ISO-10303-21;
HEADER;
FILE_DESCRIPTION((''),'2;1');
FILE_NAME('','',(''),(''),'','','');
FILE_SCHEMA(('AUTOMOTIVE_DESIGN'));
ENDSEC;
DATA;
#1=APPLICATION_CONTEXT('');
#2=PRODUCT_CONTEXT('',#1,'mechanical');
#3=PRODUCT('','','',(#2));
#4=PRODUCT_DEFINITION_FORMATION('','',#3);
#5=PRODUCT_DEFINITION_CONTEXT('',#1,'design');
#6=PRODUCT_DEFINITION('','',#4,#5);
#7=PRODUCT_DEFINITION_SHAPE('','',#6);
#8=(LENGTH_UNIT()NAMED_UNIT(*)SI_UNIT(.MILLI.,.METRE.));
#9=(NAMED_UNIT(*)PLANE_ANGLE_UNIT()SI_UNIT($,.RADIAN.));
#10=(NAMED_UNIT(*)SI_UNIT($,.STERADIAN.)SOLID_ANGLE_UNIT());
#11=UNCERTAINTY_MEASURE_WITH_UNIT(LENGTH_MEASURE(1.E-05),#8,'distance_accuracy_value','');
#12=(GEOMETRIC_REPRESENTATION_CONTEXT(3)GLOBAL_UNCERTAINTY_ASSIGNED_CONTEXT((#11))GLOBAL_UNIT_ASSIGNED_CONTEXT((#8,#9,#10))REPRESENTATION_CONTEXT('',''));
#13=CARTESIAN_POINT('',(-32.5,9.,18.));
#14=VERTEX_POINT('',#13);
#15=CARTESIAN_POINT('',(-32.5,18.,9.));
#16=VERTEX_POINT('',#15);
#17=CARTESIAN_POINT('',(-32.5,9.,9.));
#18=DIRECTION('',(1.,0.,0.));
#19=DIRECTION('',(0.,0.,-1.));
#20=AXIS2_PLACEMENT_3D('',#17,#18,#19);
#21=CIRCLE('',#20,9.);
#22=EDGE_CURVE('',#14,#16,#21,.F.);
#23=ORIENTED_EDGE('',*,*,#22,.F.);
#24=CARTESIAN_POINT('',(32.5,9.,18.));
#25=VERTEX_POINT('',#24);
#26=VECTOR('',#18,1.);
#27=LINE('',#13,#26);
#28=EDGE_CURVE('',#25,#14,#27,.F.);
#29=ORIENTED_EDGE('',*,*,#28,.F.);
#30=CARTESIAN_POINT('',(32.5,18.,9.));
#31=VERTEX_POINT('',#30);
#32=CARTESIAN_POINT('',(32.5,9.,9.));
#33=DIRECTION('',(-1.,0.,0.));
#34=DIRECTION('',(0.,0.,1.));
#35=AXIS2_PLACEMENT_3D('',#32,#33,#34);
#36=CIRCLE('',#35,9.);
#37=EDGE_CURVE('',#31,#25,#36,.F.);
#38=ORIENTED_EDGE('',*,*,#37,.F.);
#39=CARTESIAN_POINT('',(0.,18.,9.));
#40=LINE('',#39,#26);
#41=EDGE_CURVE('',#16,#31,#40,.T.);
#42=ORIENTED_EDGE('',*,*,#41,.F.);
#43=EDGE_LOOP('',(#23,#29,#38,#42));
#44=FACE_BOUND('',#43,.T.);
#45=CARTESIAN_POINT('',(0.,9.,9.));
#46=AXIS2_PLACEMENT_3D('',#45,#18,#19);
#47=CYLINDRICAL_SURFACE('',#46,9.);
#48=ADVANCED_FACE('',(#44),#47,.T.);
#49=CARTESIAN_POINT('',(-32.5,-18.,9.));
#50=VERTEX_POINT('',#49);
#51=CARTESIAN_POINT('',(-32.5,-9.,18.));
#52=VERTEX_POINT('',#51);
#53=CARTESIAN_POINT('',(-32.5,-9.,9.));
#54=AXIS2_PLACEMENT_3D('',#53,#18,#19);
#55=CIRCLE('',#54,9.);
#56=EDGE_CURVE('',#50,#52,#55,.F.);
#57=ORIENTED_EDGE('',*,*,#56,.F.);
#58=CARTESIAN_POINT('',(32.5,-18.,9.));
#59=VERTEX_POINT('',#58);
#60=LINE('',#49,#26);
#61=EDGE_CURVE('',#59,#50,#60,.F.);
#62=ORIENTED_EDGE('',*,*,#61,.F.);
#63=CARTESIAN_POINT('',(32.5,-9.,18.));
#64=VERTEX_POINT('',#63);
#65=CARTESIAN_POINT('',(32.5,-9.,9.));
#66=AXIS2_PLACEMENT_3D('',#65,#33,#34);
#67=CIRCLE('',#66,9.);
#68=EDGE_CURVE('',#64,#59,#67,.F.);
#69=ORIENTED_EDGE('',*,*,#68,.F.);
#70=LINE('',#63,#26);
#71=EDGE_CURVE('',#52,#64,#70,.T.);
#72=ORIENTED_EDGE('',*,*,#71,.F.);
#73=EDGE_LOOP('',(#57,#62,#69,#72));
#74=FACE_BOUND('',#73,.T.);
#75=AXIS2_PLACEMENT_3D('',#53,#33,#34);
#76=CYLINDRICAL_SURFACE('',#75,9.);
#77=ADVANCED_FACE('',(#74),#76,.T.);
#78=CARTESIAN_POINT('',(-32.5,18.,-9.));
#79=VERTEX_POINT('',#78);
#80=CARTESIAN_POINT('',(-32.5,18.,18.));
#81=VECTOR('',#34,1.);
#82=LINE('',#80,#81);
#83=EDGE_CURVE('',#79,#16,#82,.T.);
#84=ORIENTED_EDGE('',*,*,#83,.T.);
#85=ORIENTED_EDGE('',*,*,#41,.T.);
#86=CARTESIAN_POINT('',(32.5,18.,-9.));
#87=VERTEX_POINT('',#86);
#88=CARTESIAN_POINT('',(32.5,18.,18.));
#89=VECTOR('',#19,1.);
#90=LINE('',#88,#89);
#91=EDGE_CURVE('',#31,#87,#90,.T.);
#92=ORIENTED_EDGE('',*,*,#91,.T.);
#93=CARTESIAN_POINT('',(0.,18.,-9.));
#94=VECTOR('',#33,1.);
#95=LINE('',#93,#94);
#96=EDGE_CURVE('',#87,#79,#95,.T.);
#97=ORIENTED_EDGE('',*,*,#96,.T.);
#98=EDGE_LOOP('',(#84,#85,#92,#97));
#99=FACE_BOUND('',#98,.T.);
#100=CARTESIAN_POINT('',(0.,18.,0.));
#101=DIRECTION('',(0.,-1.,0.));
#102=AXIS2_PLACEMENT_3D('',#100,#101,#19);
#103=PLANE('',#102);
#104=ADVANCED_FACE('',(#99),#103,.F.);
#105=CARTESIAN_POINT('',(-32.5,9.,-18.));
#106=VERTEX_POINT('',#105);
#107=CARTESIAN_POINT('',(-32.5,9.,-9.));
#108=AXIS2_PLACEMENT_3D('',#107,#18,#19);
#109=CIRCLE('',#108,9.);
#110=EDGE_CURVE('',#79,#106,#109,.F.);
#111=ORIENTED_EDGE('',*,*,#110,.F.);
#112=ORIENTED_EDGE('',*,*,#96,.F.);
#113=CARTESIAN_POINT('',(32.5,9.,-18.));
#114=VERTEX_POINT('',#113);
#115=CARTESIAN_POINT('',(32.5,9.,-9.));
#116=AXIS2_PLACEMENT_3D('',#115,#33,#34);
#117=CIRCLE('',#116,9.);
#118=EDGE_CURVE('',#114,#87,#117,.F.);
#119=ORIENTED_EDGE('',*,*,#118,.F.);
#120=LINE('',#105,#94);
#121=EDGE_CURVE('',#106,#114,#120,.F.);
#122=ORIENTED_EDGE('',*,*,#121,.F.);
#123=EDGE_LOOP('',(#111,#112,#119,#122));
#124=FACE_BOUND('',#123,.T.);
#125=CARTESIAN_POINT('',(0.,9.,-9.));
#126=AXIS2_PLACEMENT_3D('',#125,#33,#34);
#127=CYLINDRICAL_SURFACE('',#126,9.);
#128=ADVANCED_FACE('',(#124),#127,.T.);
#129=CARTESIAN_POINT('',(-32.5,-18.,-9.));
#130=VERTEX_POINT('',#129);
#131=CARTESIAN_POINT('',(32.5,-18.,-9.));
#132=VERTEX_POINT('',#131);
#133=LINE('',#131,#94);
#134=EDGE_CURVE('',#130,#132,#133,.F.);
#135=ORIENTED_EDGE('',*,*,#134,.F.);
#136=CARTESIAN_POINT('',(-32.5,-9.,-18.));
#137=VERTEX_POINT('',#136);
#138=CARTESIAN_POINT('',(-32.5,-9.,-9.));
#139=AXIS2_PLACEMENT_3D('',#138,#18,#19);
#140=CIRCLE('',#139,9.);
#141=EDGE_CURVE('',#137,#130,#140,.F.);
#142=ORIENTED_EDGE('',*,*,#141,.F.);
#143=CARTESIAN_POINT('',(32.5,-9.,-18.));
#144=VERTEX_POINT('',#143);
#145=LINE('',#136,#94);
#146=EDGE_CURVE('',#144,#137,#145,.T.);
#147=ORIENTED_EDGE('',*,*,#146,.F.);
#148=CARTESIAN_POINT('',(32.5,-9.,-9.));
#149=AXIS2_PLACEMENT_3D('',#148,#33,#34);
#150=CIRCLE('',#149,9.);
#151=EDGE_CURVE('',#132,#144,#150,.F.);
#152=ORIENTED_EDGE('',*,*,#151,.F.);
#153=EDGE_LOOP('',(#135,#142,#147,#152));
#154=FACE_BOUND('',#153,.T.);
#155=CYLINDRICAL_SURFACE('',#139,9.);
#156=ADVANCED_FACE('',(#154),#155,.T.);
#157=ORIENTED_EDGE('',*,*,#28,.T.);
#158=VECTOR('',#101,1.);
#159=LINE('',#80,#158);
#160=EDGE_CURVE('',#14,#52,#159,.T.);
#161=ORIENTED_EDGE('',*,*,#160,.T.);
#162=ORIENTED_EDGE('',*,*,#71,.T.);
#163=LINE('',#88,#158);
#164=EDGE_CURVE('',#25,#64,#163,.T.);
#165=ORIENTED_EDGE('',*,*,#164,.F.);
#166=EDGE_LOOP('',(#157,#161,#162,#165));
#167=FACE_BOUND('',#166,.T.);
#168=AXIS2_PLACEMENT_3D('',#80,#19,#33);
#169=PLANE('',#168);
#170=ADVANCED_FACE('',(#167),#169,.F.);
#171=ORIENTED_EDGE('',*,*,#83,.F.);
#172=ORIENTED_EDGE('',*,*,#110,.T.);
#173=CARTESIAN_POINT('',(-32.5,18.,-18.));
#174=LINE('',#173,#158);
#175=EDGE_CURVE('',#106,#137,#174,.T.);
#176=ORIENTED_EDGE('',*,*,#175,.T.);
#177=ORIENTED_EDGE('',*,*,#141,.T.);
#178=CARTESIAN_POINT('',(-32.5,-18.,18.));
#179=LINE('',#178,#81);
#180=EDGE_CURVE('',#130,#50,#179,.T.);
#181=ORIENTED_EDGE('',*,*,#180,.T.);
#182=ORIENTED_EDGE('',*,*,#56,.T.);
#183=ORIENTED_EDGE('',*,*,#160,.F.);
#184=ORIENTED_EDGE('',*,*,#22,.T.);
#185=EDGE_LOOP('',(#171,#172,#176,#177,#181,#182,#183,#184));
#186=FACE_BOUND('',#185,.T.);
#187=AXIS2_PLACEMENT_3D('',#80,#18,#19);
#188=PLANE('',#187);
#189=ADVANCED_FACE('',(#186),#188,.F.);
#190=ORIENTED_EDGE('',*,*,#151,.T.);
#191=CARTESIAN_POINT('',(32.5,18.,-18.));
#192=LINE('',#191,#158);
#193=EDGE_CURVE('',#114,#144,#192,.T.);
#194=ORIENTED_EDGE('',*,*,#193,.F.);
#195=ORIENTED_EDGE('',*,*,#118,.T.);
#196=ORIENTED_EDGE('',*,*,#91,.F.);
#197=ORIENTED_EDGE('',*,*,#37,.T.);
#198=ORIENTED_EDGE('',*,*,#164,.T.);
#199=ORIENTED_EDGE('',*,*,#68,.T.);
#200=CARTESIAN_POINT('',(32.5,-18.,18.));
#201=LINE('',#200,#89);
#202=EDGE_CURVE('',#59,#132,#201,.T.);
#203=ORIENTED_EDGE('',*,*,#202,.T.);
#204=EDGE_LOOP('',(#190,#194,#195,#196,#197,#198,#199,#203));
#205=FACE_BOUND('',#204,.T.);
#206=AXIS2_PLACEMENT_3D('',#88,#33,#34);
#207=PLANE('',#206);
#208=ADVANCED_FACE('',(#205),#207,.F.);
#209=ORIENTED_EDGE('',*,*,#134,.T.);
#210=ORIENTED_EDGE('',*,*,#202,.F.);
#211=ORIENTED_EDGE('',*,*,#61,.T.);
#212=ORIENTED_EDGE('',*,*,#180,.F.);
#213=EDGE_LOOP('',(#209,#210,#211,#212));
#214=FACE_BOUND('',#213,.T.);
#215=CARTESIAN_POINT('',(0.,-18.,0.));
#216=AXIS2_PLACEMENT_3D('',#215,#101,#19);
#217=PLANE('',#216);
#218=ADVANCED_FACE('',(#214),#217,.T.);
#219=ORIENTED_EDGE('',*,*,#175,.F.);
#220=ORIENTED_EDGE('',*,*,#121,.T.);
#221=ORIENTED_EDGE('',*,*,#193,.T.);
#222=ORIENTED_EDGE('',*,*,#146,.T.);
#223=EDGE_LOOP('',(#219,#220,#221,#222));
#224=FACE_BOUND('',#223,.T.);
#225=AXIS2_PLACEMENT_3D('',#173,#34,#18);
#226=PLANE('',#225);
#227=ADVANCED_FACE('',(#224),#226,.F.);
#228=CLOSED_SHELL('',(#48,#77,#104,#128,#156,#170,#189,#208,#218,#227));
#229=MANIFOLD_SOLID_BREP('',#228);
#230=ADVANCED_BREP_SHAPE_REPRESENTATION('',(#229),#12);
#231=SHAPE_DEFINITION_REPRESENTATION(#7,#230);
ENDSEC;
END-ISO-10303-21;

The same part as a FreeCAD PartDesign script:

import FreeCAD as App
import Part
import Sketcher

V = App.Vector
Q = App.Units.Quantity


def edges_at(feature, points):
    """Names of the edges that pass closest to the given points."""
    edges = feature.Shape.Edges
    near = lambda p: min(range(len(edges)), key=lambda i: edges[i].distToShape(Part.Vertex(*p))[0])
    return sorted({f"Edge{near(p) + 1}" for p in points})

doc = App.newDocument("Part")
params = doc.addObject("Spreadsheet::Sheet", "Params")
for row, (alias, value) in enumerate([
    ("sketch1_width", "65 mm"),
    ("sketch1_height", "36 mm"),
    ("pad1_length", "36 mm"),
    ("fillet_radius", "9 mm"),
], start=1):
    params.set(f"A{row}", alias)
    params.set(f"B{row}", "=" + value)
    params.setAlias(f"B{row}", alias)

body = doc.addObject("PartDesign::Body", "Body")

# Sketch on XZ plane
sketch1 = body.newObject("Sketcher::SketchObject", "Sketch")
sketch1.AttachmentSupport = (doc.getObject("XZ_Plane"), [""])
sketch1.MapMode = "FlatFace"
sketch1.addGeometry([
    Part.LineSegment(V(-32, -18, 0), V(-32, 18, 0)),
    Part.LineSegment(V(-32, 18, 0), V(32, 18, 0)),
    Part.LineSegment(V(32, 18, 0), V(32, -18, 0)),
    Part.LineSegment(V(32, -18, 0), V(-32, -18, 0)),
], False)
sketch1.addConstraint([
    Sketcher.Constraint("Coincident", 0, 2, 1, 1),
    Sketcher.Constraint("Coincident", 1, 2, 2, 1),
    Sketcher.Constraint("Coincident", 2, 2, 3, 1),
    Sketcher.Constraint("Coincident", 3, 2, 0, 1),
    Sketcher.Constraint("Vertical", 0),
    Sketcher.Constraint("Horizontal", 1),
    Sketcher.Constraint("Vertical", 2),
    Sketcher.Constraint("Horizontal", 3),
    Sketcher.Constraint("Symmetric", 0, 2, 2, 2, -1, 1),
    Sketcher.Constraint("DistanceX", 1, 1, 1, 2, Q("65 mm")),
    Sketcher.Constraint("DistanceY", 0, 1, 0, 2, Q("36 mm")),
])
sketch1.setExpression("Constraints[9]", "Params.sketch1_width")
sketch1.setExpression("Constraints[10]", "Params.sketch1_height")
pad1 = body.newObject("PartDesign::Pad", "Pad")
pad1.Profile = sketch1
pad1.setExpression("Length", "Params.pad1_length")
pad1.Midplane = True
doc.recompute()

fillet = body.newObject("PartDesign::Fillet", "Fillet")
fillet.Base = (pad1, edges_at(pad1, [
    (0, 18, 18),
    (0, -18, 18),
    (0, -18, -18),
    (0, 18, -18),
]))
fillet.setExpression("Radius", "Params.fillet_radius")

doc.recompute()
